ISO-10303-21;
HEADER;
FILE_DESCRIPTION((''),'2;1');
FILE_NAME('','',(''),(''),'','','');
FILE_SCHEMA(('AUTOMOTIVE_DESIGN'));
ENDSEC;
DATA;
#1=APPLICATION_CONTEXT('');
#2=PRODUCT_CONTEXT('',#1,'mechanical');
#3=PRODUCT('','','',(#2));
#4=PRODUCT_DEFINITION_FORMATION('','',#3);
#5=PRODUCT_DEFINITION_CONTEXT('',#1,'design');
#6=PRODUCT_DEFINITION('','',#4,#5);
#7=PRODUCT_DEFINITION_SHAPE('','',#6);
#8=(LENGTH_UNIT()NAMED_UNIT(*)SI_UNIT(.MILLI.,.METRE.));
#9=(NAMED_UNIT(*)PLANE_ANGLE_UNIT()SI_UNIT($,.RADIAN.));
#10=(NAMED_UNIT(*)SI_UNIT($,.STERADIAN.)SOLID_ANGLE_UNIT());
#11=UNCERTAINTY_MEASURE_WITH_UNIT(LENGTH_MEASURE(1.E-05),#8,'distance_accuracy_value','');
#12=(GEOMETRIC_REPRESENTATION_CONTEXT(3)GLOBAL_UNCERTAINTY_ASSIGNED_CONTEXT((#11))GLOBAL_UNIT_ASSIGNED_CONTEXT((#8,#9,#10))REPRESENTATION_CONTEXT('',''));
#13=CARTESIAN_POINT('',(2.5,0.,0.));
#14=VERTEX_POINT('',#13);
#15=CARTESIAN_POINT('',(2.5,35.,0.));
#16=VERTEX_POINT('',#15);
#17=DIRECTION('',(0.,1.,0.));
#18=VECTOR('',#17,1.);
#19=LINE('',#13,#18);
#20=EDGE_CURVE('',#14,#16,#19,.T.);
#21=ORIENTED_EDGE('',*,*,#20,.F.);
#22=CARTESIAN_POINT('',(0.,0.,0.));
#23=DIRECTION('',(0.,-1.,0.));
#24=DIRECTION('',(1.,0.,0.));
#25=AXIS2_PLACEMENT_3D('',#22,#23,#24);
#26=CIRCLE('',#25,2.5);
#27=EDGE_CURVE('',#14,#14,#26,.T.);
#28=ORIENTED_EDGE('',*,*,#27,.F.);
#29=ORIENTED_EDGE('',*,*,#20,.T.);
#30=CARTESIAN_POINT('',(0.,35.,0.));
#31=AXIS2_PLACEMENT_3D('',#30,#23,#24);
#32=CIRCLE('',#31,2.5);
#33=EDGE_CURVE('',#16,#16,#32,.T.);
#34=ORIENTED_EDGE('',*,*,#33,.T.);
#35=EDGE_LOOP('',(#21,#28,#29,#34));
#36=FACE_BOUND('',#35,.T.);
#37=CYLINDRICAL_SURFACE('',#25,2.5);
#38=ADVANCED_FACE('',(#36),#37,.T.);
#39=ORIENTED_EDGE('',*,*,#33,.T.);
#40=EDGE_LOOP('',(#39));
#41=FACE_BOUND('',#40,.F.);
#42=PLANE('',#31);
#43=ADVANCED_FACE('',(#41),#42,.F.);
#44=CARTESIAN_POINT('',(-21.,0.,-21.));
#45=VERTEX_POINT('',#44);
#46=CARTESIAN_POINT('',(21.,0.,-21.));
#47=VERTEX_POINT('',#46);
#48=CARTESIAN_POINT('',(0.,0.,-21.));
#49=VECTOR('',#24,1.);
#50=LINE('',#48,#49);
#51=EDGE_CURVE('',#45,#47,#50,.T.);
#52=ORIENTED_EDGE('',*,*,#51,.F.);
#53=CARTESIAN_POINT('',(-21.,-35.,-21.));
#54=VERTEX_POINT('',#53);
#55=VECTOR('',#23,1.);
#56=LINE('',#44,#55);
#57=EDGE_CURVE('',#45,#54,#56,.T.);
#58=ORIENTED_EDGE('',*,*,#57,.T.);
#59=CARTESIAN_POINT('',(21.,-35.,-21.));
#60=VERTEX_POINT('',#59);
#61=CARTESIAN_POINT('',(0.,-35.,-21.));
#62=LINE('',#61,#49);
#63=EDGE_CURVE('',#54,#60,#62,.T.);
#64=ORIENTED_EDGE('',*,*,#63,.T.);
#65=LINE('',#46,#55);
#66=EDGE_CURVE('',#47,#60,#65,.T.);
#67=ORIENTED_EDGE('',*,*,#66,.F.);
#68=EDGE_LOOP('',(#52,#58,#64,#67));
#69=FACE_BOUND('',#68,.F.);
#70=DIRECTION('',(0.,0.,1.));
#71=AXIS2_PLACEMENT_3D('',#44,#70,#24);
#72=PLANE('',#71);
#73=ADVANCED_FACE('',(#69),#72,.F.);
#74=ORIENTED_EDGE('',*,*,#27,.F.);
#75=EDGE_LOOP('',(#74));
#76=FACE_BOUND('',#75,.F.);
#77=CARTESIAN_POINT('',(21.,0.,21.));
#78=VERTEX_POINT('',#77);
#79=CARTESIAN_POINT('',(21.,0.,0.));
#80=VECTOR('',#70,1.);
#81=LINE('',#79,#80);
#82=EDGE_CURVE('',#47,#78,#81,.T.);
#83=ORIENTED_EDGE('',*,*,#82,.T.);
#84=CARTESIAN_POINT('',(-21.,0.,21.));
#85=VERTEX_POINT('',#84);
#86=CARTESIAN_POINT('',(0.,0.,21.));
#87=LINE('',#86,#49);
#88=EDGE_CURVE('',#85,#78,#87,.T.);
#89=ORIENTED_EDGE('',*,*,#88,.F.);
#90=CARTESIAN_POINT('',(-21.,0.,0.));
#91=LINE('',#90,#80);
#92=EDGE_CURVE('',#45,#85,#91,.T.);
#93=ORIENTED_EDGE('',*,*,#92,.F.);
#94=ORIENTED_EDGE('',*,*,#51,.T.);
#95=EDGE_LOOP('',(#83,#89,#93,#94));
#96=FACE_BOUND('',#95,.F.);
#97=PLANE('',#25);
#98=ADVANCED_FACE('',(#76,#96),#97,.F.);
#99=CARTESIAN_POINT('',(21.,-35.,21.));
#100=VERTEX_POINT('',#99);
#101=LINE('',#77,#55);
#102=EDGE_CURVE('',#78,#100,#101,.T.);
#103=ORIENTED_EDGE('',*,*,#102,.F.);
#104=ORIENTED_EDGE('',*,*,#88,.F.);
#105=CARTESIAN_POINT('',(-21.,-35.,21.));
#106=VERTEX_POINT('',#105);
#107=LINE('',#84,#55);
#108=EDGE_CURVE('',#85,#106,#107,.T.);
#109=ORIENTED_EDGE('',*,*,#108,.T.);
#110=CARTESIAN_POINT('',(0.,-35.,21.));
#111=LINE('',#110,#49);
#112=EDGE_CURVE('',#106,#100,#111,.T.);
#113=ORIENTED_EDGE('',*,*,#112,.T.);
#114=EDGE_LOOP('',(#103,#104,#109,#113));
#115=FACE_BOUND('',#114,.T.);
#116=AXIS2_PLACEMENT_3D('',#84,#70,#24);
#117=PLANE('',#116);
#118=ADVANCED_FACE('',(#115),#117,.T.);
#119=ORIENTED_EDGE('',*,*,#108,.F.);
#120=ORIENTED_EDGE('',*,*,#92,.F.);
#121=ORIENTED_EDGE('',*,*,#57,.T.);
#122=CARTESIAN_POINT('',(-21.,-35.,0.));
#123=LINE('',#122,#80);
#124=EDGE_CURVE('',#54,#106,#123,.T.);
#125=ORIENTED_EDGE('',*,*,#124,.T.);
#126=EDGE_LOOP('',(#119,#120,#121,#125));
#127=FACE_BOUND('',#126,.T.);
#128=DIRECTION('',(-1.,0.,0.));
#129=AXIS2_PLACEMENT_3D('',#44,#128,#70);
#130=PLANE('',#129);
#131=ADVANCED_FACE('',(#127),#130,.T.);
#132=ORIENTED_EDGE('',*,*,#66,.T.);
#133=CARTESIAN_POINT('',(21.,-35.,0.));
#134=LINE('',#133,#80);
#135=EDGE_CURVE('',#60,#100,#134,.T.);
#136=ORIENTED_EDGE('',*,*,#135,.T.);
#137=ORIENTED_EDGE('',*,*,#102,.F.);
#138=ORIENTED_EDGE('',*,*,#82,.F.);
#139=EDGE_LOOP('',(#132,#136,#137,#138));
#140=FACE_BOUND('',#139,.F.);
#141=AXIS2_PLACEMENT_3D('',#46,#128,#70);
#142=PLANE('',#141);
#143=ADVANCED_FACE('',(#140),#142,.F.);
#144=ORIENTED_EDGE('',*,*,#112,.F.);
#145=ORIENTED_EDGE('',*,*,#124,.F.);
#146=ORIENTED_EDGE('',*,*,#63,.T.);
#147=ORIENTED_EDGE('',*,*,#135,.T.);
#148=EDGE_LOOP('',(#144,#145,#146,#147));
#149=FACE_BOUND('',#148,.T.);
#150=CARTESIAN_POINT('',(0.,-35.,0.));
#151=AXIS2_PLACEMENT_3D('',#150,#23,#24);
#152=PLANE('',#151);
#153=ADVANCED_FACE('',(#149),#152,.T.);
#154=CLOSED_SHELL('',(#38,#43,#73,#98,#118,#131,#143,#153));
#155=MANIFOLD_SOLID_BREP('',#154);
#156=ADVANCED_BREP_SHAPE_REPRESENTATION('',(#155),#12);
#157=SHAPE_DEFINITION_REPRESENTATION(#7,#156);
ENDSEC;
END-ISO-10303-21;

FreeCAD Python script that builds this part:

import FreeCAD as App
import Part
import Sketcher
from FreeCAD import Vector
Q = App.Units.Quantity


def add_polygon(sketch, points):
    """Adds a closed chain of lines whose ends are joined by coincident constraints."""
    first, n = sketch.GeometryCount, len(points)
    for a, b in zip(points, points[1:] + points[:1]):
        sketch.addGeometry(Part.LineSegment(App.Vector(*a, 0), App.Vector(*b, 0)), False)
    for i in range(n):
        sketch.addConstraint(Sketcher.Constraint("Coincident", first + i, 2, first + (i + 1) % n, 1))

doc = App.newDocument("Part")
body = doc.addObject("PartDesign::Body", "Body")

sketch1 = body.newObject("Sketcher::SketchObject", "Sketch")
sketch1.AttachmentSupport = (doc.getObject("XZ_Plane"), [""])
sketch1.MapMode = "FlatFace"
add_polygon(sketch1, [(-21, 21), (-21, -21), (21, -21), (21, 21)])
sketch1.addConstraint([
    Sketcher.Constraint("Vertical", 0),
    Sketcher.Constraint("Horizontal", 1),
    Sketcher.Constraint("Vertical", 2),
    Sketcher.Constraint("Horizontal", 3),
    Sketcher.Constraint("Symmetric", 0, 2, 2, 2, -1, 1),
    Sketcher.Constraint("Equal", 3, 0),
    Sketcher.Constraint("DistanceX", 1, 1, 1, 2, Q("42 mm")),
])
pad1 = body.newObject("PartDesign::Pad", "Pad")
pad1.Profile = sketch1
pad1.Length = 35

sketch2 = body.newObject("Sketcher::SketchObject", "Sketch001")
sketch2.AttachmentSupport = (doc.getObject("XZ_Plane"), [""])
sketch2.MapMode = "FlatFace"
sketch2.addGeometry(Part.Circle(Vector(0, 0, 0), Vector(0, 0, 1), 2.5), False)
sketch2.addConstraint([
    Sketcher.Constraint("Coincident", 0, 3, -1, 1),
    Sketcher.Constraint("Diameter", 0, Q("5 mm")),
])
pad2 = body.newObject("PartDesign::Pad", "Pad001")
pad2.Profile = sketch2
pad2.Length = 35
pad2.Reversed = True

doc.recompute()
